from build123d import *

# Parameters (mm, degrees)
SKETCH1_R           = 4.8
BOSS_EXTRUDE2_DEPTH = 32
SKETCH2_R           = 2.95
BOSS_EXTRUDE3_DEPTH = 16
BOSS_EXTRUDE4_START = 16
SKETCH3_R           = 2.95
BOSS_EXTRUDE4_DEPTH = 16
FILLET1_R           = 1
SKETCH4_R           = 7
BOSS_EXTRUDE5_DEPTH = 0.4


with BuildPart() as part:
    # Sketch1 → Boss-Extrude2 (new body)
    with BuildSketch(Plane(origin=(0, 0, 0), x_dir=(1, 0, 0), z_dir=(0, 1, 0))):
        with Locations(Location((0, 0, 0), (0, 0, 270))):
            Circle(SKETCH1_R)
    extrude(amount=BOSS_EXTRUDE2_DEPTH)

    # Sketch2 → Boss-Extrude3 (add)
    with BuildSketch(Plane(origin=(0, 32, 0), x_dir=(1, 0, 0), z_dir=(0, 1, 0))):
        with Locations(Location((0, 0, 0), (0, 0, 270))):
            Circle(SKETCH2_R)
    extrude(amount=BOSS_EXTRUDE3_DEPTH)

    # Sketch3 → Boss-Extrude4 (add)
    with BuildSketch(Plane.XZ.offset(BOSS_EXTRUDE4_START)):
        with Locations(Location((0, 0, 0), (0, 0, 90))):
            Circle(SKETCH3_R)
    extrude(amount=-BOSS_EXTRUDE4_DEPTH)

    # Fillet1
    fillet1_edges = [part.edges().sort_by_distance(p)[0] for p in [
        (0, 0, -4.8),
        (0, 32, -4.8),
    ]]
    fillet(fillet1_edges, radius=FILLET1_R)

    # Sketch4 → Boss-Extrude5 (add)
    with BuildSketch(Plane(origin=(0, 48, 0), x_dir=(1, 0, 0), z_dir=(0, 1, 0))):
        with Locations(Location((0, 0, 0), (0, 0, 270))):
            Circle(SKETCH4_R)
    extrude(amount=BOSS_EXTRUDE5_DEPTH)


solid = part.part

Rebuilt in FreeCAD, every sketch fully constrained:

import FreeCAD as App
import Part
import Sketcher

V = App.Vector
Q = App.Units.Quantity


def edges_at(feature, points):
    """Names of the edges that pass closest to the given points."""
    edges = feature.Shape.Edges
    near = lambda p: min(range(len(edges)), key=lambda i: edges[i].distToShape(Part.Vertex(*p))[0])
    return sorted({f"Edge{near(p) + 1}" for p in points})

doc = App.newDocument("Part")
body = doc.addObject("PartDesign::Body", "Body")

sketch1 = doc.addObject("Sketcher::SketchObject", "Sketch")
body.addObject(sketch1)
sketch1.AttachmentSupport = (doc.XZ_Plane, [""])
sketch1.MapMode = "FlatFace"
sketch1.addGeometry(Part.Circle(V(0, 0, 0), V(0, 0, 1), 4.8), False)
sketch1.addConstraint(Sketcher.Constraint("Coincident", 0, 3, -1, 1))
sketch1.addConstraint(Sketcher.Constraint("Diameter", 0, Q("9.6 mm")))
pad1 = doc.addObject("PartDesign::Pad", "Pad")
body.addObject(pad1)
pad1.Profile = sketch1
pad1.Length = 32
pad1.Reversed = True

sketch2 = doc.addObject("Sketcher::SketchObject", "Sketch001")
body.addObject(sketch2)
sketch2.AttachmentSupport = (doc.XZ_Plane, [""])
sketch2.MapMode = "FlatFace"
sketch2.AttachmentOffset = App.Placement(V(0, 0, -32), App.Rotation())
sketch2.addGeometry(Part.Circle(V(0, 0, 0), V(0, 0, 1), 3), False)
sketch2.addConstraint(Sketcher.Constraint("Coincident", 0, 3, -1, 1))
sketch2.addConstraint(Sketcher.Constraint("Diameter", 0, Q("5.9 mm")))
pad2 = doc.addObject("PartDesign::Pad", "Pad001")
body.addObject(pad2)
pad2.Profile = sketch2
pad2.Length = 16
pad2.Reversed = True

sketch3 = doc.addObject("Sketcher::SketchObject", "Sketch002")
body.addObject(sketch3)
sketch3.AttachmentSupport = (doc.XZ_Plane, [""])
sketch3.MapMode = "FlatFace"
sketch3.AttachmentOffset = App.Placement(V(0, 0, 16), App.Rotation())
sketch3.addGeometry(Part.Circle(V(0, 0, 0), V(0, 0, 1), 3), False)
sketch3.addConstraint(Sketcher.Constraint("Coincident", 0, 3, -1, 1))
sketch3.addConstraint(Sketcher.Constraint("Diameter", 0, Q("5.9 mm")))
pad3 = doc.addObject("PartDesign::Pad", "Pad002")
body.addObject(pad3)
pad3.Profile = sketch3
pad3.Length = 16
pad3.Reversed = True
doc.recompute()

fillet = doc.addObject("PartDesign::Fillet", "Fillet")
body.addObject(fillet)
fillet.Base = (pad3, edges_at(pad3, [(0, 0, -4.8), (0, 32, -4.8)]))
fillet.Radius = 1

sketch4 = doc.addObject("Sketcher::SketchObject", "Sketch003")
body.addObject(sketch4)
sketch4.AttachmentSupport = (doc.XZ_Plane, [""])
sketch4.MapMode = "FlatFace"
sketch4.AttachmentOffset = App.Placement(V(0, 0, -48), App.Rotation())
sketch4.addGeometry(Part.Circle(V(0, 0, 0), V(0, 0, 1), 7), False)
sketch4.addConstraint(Sketcher.Constraint("Coincident", 0, 3, -1, 1))
sketch4.addConstraint(Sketcher.Constraint("Diameter", 0, Q("14 mm")))
pad4 = doc.addObject("PartDesign::Pad", "Pad003")
body.addObject(pad4)
pad4.Profile = sketch4
pad4.Length = 0.4
pad4.Reversed = True

doc.recompute()
